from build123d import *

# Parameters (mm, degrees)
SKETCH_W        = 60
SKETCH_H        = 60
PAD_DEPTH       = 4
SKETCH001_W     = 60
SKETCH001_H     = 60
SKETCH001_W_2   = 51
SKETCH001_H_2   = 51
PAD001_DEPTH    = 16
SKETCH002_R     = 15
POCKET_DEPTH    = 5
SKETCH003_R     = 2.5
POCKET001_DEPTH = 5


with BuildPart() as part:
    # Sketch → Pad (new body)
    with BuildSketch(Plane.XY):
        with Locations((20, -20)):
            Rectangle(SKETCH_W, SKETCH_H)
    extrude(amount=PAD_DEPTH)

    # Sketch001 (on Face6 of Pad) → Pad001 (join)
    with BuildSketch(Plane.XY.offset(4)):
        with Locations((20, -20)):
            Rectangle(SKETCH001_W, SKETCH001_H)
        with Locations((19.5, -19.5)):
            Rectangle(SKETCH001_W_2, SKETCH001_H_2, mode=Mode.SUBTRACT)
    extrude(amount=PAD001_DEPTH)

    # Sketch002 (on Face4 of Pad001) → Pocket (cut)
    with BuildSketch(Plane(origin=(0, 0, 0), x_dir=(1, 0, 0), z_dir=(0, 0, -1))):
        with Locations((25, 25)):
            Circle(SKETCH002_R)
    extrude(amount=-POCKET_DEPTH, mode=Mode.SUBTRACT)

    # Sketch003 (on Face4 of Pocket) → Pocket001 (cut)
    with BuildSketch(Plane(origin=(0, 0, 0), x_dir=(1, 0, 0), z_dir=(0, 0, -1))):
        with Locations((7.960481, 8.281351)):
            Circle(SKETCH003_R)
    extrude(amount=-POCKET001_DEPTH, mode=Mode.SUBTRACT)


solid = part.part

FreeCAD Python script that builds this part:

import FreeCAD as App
import Part
import Sketcher
Q = App.Units.Quantity

doc = App.newDocument("Part")
params = doc.addObject("Spreadsheet::Sheet", "Params")
for row, (alias, value) in enumerate([
    ("sketch1_width", "60 mm"),
    ("pad1_length", "4 mm"),
    ("sketch2_width", "60 mm"),
    ("sketch2_width2", "51 mm"),
    ("pad2_length", "16 mm"),
    ("sketch3_diameter", "30 mm"),
    ("pocket1_length", "5 mm"),
    ("sketch4_diameter", "5 mm"),
    ("pocket2_length", "5 mm"),
], start=1):
    params.set(f"A{row}", alias)
    params.set(f"B{row}", "=" + value)
    params.setAlias(f"B{row}", alias)

body = doc.addObject("PartDesign::Body", "Body")

sketch1 = body.newObject("Sketcher::SketchObject", "Sketch")
sketch1.AttachmentSupport = (doc.getObject("XY_Plane"), [""])
sketch1.MapMode = "FlatFace"
sketch1.addGeometry([
    Part.LineSegment(App.Vector(-10, 10, 0), App.Vector(-10, -50, 0)),
    Part.LineSegment(App.Vector(-10, -50, 0), App.Vector(50, -50, 0)),
    Part.LineSegment(App.Vector(50, -50, 0), App.Vector(50, 10, 0)),
    Part.LineSegment(App.Vector(50, 10, 0), App.Vector(-10, 10, 0)),
], False)
sketch1.addConstraint([
    Sketcher.Constraint("Coincident", 0, 2, 1, 1),
    Sketcher.Constraint("Coincident", 1, 2, 2, 1),
    Sketcher.Constraint("Coincident", 2, 2, 3, 1),
    Sketcher.Constraint("Coincident", 3, 2, 0, 1),
    Sketcher.Constraint("Vertical", 0),
    Sketcher.Constraint("Horizontal", 1),
    Sketcher.Constraint("Vertical", 2),
    Sketcher.Constraint("Horizontal", 3),
    Sketcher.Constraint("Equal", 3, 0),
    Sketcher.Constraint("DistanceX", 1, 1, 1, 2, Q("60 mm")),
    Sketcher.Constraint("DistanceX", 0, 2, -1, 1, Q("10 mm")),
    Sketcher.Constraint("DistanceY", 0, 2, -1, 1, Q("50 mm")),
])
sketch1.setExpression("Constraints[9]", "Params.sketch1_width")
pad1 = body.newObject("PartDesign::Pad", "Pad")
pad1.Profile = sketch1
pad1.setExpression("Length", "Params.pad1_length")

sketch2 = body.newObject("Sketcher::SketchObject", "Sketch001")
sketch2.AttachmentSupport = (doc.getObject("XY_Plane"), [""])
sketch2.MapMode = "FlatFace"
sketch2.AttachmentOffset = App.Placement(App.Vector(0, 0, 4), App.Rotation())
sketch2.addGeometry([
    Part.LineSegment(App.Vector(-10, 10, 0), App.Vector(-10, -50, 0)),
    Part.LineSegment(App.Vector(-10, -50, 0), App.Vector(50, -50, 0)),
    Part.LineSegment(App.Vector(50, -50, 0), App.Vector(50, 10, 0)),
    Part.LineSegment(App.Vector(50, 10, 0), App.Vector(-10, 10, 0)),
    Part.LineSegment(App.Vector(45, -45, 0), App.Vector(-6, -45, 0)),
    Part.LineSegment(App.Vector(-6, -45, 0), App.Vector(-6, 6, 0)),
    Part.LineSegment(App.Vector(-6, 6, 0), App.Vector(45, 6, 0)),
    Part.LineSegment(App.Vector(45, 6, 0), App.Vector(45, -45, 0)),
], False)
sketch2.addConstraint([
    Sketcher.Constraint("Coincident", 0, 2, 1, 1),
    Sketcher.Constraint("Coincident", 1, 2, 2, 1),
    Sketcher.Constraint("Coincident", 2, 2, 3, 1),
    Sketcher.Constraint("Coincident", 3, 2, 0, 1),
    Sketcher.Constraint("Coincident", 4, 2, 5, 1),
    Sketcher.Constraint("Coincident", 5, 2, 6, 1),
    Sketcher.Constraint("Coincident", 6, 2, 7, 1),
    Sketcher.Constraint("Coincident", 7, 2, 4, 1),
    Sketcher.Constraint("Vertical", 0),
    Sketcher.Constraint("Horizontal", 1),
    Sketcher.Constraint("Vertical", 2),
    Sketcher.Constraint("Horizontal", 3),
    Sketcher.Constraint("Horizontal", 4),
    Sketcher.Constraint("Vertical", 5),
    Sketcher.Constraint("Horizontal", 6),
    Sketcher.Constraint("Vertical", 7),
    Sketcher.Constraint("Equal", 3, 0),
    Sketcher.Constraint("Equal", 6, 5),
    Sketcher.Constraint("DistanceX", 1, 1, 1, 2, Q("60 mm")),
    Sketcher.Constraint("DistanceX", 4, 2, 4, 1, Q("51 mm")),
    Sketcher.Constraint("DistanceX", 0, 2, -1, 1, Q("10 mm")),
    Sketcher.Constraint("DistanceY", 0, 2, -1, 1, Q("50 mm")),
    Sketcher.Constraint("DistanceX", 4, 2, -1, 1, Q("6 mm")),
    Sketcher.Constraint("DistanceY", 4, 2, -1, 1, Q("45 mm")),
])
sketch2.setExpression("Constraints[18]", "Params.sketch2_width")
sketch2.setExpression("Constraints[19]", "Params.sketch2_width2")
pad2 = body.newObject("PartDesign::Pad", "Pad001")
pad2.Profile = sketch2
pad2.setExpression("Length", "Params.pad2_length")

sketch3 = body.newObject("Sketcher::SketchObject", "Sketch002")
sketch3.AttachmentSupport = (doc.getObject("XY_Plane"), [""])
sketch3.MapMode = "FlatFace"
sketch3.addGeometry(Part.Circle(App.Vector(25, -25, 0), App.Vector(0, 0, 1), 15), False)
sketch3.addConstraint([
    Sketcher.Constraint("Diameter", 0, Q("30 mm")),
    Sketcher.Constraint("DistanceX", -1, 1, 0, 3, Q("25 mm")),
    Sketcher.Constraint("DistanceY", 0, 3, -1, 1, Q("25 mm")),
])
sketch3.setExpression("Constraints[0]", "Params.sketch3_diameter")
pocket1 = body.newObject("PartDesign::Pocket", "Pocket")
pocket1.Profile = sketch3
pocket1.setExpression("Length", "Params.pocket1_length")
pocket1.Reversed = True

sketch4 = body.newObject("Sketcher::SketchObject", "Sketch003")
sketch4.AttachmentSupport = (doc.getObject("XY_Plane"), [""])
sketch4.MapMode = "FlatFace"
sketch4.addGeometry(Part.Circle(App.Vector(8, -8.3, 0), App.Vector(0, 0, 1), 2.5), False)
sketch4.addConstraint([
    Sketcher.Constraint("Diameter", 0, Q("5 mm")),
    Sketcher.Constraint("DistanceX", -1, 1, 0, 3, Q("7.960481 mm")),
    Sketcher.Constraint("DistanceY", 0, 3, -1, 1, Q("8.281351 mm")),
])
sketch4.setExpression("Constraints[0]", "Params.sketch4_diameter")
pocket2 = body.newObject("PartDesign::Pocket", "Pocket001")
pocket2.Profile = sketch4
pocket2.setExpression("Length", "Params.pocket2_length")
pocket2.Reversed = True

doc.recompute()
